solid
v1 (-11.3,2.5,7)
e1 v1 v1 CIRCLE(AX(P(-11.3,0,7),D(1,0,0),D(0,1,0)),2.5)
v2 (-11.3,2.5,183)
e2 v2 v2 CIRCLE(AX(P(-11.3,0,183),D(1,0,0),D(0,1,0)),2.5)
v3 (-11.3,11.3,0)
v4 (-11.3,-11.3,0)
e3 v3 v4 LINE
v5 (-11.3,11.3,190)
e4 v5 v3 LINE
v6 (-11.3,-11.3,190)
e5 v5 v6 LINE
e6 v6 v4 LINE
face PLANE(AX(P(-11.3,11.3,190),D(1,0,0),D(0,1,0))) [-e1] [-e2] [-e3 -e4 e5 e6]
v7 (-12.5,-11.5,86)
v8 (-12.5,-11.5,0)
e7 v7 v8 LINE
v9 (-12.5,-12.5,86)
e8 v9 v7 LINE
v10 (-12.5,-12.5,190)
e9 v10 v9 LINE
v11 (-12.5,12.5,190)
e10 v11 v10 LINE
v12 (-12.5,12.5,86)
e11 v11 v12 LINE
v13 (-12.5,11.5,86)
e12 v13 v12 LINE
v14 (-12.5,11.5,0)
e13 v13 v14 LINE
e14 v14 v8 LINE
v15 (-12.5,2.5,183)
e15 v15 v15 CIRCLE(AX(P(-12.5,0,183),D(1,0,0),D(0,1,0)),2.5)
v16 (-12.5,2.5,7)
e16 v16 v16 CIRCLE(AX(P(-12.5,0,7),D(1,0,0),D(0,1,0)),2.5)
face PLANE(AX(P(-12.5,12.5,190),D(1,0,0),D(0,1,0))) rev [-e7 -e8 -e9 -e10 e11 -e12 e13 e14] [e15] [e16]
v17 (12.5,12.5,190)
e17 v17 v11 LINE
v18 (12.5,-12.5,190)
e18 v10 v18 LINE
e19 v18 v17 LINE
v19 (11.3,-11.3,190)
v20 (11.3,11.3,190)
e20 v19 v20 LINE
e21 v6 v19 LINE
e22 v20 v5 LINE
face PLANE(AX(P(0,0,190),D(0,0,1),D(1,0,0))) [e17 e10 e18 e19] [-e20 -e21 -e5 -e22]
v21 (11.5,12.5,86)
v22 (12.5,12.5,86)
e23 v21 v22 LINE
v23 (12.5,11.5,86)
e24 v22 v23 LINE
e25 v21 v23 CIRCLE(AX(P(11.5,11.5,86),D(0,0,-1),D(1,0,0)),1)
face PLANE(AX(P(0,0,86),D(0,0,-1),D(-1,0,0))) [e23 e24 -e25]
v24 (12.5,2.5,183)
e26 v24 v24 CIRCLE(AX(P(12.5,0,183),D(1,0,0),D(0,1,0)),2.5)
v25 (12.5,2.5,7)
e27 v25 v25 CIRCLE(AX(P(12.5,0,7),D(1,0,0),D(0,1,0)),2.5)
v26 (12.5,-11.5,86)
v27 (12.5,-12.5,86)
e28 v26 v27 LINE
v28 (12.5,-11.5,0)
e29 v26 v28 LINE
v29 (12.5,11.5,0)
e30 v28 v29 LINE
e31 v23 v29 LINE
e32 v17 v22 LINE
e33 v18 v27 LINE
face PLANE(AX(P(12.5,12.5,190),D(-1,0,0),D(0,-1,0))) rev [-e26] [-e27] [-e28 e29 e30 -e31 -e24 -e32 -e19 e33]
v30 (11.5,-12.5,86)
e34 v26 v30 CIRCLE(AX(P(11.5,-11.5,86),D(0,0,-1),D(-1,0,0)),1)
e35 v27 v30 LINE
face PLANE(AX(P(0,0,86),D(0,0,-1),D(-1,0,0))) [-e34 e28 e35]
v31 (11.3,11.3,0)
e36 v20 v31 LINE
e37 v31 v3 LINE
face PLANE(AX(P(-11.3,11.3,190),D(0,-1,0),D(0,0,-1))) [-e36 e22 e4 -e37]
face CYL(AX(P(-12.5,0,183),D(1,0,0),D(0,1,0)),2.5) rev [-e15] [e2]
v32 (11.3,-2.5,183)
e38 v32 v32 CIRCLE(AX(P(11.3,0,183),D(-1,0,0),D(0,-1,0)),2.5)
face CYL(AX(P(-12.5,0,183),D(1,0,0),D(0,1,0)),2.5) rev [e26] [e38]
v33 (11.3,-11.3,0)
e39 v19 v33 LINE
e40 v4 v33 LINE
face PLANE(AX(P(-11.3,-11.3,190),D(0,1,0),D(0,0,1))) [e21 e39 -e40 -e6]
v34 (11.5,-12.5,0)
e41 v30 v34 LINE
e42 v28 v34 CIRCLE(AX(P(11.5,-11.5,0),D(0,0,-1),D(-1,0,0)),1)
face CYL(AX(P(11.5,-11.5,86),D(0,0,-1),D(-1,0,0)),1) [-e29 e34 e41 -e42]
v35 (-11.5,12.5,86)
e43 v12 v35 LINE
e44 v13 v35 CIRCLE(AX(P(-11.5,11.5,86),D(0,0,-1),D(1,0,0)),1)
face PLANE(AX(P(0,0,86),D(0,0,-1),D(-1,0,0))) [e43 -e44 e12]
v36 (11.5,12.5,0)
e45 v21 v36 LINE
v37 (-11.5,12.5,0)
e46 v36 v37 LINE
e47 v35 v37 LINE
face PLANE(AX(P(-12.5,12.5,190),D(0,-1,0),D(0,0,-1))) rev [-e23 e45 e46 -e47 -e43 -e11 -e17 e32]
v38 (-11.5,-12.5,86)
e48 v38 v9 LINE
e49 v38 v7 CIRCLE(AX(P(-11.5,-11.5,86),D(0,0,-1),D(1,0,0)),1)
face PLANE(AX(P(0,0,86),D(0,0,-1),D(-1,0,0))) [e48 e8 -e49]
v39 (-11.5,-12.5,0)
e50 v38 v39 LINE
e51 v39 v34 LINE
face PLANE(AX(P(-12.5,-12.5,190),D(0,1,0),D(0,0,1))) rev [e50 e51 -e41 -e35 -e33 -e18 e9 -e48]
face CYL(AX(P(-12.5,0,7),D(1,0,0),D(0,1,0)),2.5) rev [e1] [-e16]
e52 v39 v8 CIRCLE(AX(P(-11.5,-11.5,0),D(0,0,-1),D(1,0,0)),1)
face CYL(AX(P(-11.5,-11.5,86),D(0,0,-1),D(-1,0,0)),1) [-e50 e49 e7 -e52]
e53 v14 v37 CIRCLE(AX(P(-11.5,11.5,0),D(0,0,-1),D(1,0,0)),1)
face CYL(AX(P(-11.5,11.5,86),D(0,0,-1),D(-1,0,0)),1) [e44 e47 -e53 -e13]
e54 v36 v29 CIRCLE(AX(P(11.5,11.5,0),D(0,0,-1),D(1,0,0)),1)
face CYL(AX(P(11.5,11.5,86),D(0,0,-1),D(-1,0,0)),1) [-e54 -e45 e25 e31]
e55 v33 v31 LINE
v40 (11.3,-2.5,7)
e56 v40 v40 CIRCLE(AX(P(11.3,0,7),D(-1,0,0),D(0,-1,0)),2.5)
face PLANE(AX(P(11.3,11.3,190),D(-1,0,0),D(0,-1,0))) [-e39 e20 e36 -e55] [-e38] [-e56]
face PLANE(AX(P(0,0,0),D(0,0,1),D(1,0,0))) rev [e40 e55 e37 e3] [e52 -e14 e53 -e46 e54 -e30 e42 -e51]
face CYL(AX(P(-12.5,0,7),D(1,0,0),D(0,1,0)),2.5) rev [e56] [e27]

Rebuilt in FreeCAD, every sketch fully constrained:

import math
import FreeCAD as App
import Part
import Sketcher
from FreeCAD import Vector


def add_polygon(sketch, points):
    """Adds a closed chain of lines whose ends are joined by coincident constraints."""
    first, n = sketch.GeometryCount, len(points)
    for a, b in zip(points, points[1:] + points[:1]):
        sketch.addGeometry(Part.LineSegment(App.Vector(*a, 0), App.Vector(*b, 0)), False)
    for i in range(n):
        sketch.addConstraint(Sketcher.Constraint("Coincident", first + i, 2, first + (i + 1) % n, 1))

doc = App.newDocument("Part")
params = doc.addObject("Spreadsheet::Sheet", "Params")
for row, (alias, value) in enumerate([
    ("sketch1_width", "25 mm"),
    ("sketch1_width2", "22.6 mm"),
    ("pad1_length", "190 mm"),
    ("sketch2_diameter", "5 mm"),
    ("sketch3_diameter", "80 mm"),
    ("sketch3_radius", "1 mm"),
    ("sketch3_width", "23 mm"),
    ("pocket2_length", "86 mm"),
], start=1):
    params.set(f"A{row}", alias)
    params.set(f"B{row}", "=" + value)
    params.setAlias(f"B{row}", alias)

body = doc.addObject("PartDesign::Body", "Body")

sketch1 = doc.addObject("Sketcher::SketchObject", "Sketch")
body.addObject(sketch1)
sketch1.AttachmentSupport = (doc.XY_Plane, [""])
sketch1.MapMode = "FlatFace"
add_polygon(sketch1, [(-12, 12), (-12, -12), (12, -12), (12, 12)])
add_polygon(sketch1, [(11, -11), (-11, -11), (-11, 11), (11, 11)])
sketch1.addConstraint([
    Sketcher.Constraint("Vertical", 0),
    Sketcher.Constraint("Horizontal", 1),
    Sketcher.Constraint("Vertical", 2),
    Sketcher.Constraint("Horizontal", 3),
    Sketcher.Constraint("Horizontal", 4),
    Sketcher.Constraint("Vertical", 5),
    Sketcher.Constraint("Horizontal", 6),
    Sketcher.Constraint("Vertical", 7),
    Sketcher.Constraint("Symmetric", 0, 2, 2, 2, -1, 1),
    Sketcher.Constraint("Symmetric", 4, 2, 6, 2, -1, 1),
    Sketcher.Constraint("Equal", 3, 0),
    Sketcher.Constraint("Equal", 6, 5),
    Sketcher.Constraint("DistanceX", 1, 1, 1, 2, 25.0),
    Sketcher.Constraint("DistanceX", 4, 2, 4, 1, 22.6),
])
sketch1.setExpression("Constraints[20]", "Params.sketch1_width")
sketch1.setExpression("Constraints[21]", "Params.sketch1_width2")
pad1 = doc.addObject("PartDesign::Pad", "Pad")
body.addObject(pad1)
pad1.Profile = sketch1
pad1.setExpression("Length", "Params.pad1_length")

sketch2 = doc.addObject("Sketcher::SketchObject", "Sketch001")
body.addObject(sketch2)
sketch2.AttachmentSupport = (doc.YZ_Plane, [""])
sketch2.MapMode = "FlatFace"
sketch2.AttachmentOffset = App.Placement(Vector(0, 0, 12.5), App.Rotation())
sketch2.addGeometry([
    Part.Circle(Vector(0, 7, 0), Vector(0, 0, 1), 2.5),
    Part.Circle(Vector(0, 183, 0), Vector(0, 0, 1), 2.5),
], False)
sketch2.addConstraint([
    Sketcher.Constraint("Equal", 0, 1),
    Sketcher.Constraint("PointOnObject", 0, 3, -2),
    Sketcher.Constraint("PointOnObject", 1, 3, -2),
    Sketcher.Constraint("Diameter", 0, 5.0),
    Sketcher.Constraint("DistanceY", -1, 1, 0, 3, 7.0),
    Sketcher.Constraint("DistanceY", -1, 1, 1, 3, 183.0),
])
sketch2.setExpression("Constraints[3]", "Params.sketch2_diameter")
pocket1 = doc.addObject("PartDesign::Pocket", "Pocket")
body.addObject(pocket1)
pocket1.Profile = sketch2
pocket1.Type = "ThroughAll"

sketch3 = doc.addObject("Sketcher::SketchObject", "Sketch002")
body.addObject(sketch3)
sketch3.AttachmentSupport = (doc.XY_Plane, [""])
sketch3.MapMode = "FlatFace"
sketch3.addGeometry([
    Part.Circle(Vector(0, 0, 0), Vector(0, 0, 1), 40),
    Part.ArcOfCircle(Part.Circle(Vector(11.5, 11.5, 0), Vector(0, 0, 1), 1), math.radians(0), math.radians(90)),
    Part.LineSegment(Vector(11.5, 12.5, 0), Vector(-11.5, 12.5, 0)),
    Part.ArcOfCircle(Part.Circle(Vector(-11.5, 11.5, 0), Vector(0, 0, 1), 1), math.radians(90), math.radians(180)),
    Part.LineSegment(Vector(-12.5, 11.5, 0), Vector(-12.5, -11.5, 0)),
    Part.ArcOfCircle(Part.Circle(Vector(-11.5, -11.5, 0), Vector(0, 0, 1), 1), math.radians(-180), math.radians(-90)),
    Part.LineSegment(Vector(-11.5, -12.5, 0), Vector(11.5, -12.5, 0)),
    Part.ArcOfCircle(Part.Circle(Vector(11.5, -11.5, 0), Vector(0, 0, 1), 1), math.radians(-90), math.radians(0)),
    Part.LineSegment(Vector(12.5, -11.5, 0), Vector(12.5, 11.5, 0)),
], False)
sketch3.addConstraint([
    Sketcher.Constraint("Tangent", 1, 2, 2, 1),
    Sketcher.Constraint("Tangent", 2, 2, 3, 1),
    Sketcher.Constraint("Tangent", 3, 2, 4, 1),
    Sketcher.Constraint("Tangent", 4, 2, 5, 1),
    Sketcher.Constraint("Tangent", 5, 2, 6, 1),
    Sketcher.Constraint("Tangent", 6, 2, 7, 1),
    Sketcher.Constraint("Tangent", 7, 2, 8, 1),
    Sketcher.Constraint("Tangent", 8, 2, 1, 1),
    Sketcher.Constraint("Horizontal", 2),
    Sketcher.Constraint("Vertical", 4),
    Sketcher.Constraint("Horizontal", 6),
    Sketcher.Constraint("Vertical", 8),
    Sketcher.Constraint("Coincident", 0, 3, -1, 1),
    Sketcher.Constraint("Equal", 1, 3),
    Sketcher.Constraint("Equal", 3, 5),
    Sketcher.Constraint("Equal", 5, 7),
    Sketcher.Constraint("Symmetric", 1, 3, 5, 3, -1, 1),
    Sketcher.Constraint("Equal", 6, 4),
    Sketcher.Constraint("Diameter", 0, 80.0),
    Sketcher.Constraint("Radius", 1, 1.0),
    Sketcher.Constraint("DistanceX", 2, 2, 2, 1, 23.0),
])
sketch3.setExpression("Constraints[18]", "Params.sketch3_diameter")
sketch3.setExpression("Constraints[19]", "Params.sketch3_radius")
sketch3.setExpression("Constraints[20]", "Params.sketch3_width")
pocket2 = doc.addObject("PartDesign::Pocket", "Pocket001")
body.addObject(pocket2)
pocket2.Profile = sketch3
pocket2.setExpression("Length", "Params.pocket2_length")
pocket2.Reversed = True

doc.recompute()
